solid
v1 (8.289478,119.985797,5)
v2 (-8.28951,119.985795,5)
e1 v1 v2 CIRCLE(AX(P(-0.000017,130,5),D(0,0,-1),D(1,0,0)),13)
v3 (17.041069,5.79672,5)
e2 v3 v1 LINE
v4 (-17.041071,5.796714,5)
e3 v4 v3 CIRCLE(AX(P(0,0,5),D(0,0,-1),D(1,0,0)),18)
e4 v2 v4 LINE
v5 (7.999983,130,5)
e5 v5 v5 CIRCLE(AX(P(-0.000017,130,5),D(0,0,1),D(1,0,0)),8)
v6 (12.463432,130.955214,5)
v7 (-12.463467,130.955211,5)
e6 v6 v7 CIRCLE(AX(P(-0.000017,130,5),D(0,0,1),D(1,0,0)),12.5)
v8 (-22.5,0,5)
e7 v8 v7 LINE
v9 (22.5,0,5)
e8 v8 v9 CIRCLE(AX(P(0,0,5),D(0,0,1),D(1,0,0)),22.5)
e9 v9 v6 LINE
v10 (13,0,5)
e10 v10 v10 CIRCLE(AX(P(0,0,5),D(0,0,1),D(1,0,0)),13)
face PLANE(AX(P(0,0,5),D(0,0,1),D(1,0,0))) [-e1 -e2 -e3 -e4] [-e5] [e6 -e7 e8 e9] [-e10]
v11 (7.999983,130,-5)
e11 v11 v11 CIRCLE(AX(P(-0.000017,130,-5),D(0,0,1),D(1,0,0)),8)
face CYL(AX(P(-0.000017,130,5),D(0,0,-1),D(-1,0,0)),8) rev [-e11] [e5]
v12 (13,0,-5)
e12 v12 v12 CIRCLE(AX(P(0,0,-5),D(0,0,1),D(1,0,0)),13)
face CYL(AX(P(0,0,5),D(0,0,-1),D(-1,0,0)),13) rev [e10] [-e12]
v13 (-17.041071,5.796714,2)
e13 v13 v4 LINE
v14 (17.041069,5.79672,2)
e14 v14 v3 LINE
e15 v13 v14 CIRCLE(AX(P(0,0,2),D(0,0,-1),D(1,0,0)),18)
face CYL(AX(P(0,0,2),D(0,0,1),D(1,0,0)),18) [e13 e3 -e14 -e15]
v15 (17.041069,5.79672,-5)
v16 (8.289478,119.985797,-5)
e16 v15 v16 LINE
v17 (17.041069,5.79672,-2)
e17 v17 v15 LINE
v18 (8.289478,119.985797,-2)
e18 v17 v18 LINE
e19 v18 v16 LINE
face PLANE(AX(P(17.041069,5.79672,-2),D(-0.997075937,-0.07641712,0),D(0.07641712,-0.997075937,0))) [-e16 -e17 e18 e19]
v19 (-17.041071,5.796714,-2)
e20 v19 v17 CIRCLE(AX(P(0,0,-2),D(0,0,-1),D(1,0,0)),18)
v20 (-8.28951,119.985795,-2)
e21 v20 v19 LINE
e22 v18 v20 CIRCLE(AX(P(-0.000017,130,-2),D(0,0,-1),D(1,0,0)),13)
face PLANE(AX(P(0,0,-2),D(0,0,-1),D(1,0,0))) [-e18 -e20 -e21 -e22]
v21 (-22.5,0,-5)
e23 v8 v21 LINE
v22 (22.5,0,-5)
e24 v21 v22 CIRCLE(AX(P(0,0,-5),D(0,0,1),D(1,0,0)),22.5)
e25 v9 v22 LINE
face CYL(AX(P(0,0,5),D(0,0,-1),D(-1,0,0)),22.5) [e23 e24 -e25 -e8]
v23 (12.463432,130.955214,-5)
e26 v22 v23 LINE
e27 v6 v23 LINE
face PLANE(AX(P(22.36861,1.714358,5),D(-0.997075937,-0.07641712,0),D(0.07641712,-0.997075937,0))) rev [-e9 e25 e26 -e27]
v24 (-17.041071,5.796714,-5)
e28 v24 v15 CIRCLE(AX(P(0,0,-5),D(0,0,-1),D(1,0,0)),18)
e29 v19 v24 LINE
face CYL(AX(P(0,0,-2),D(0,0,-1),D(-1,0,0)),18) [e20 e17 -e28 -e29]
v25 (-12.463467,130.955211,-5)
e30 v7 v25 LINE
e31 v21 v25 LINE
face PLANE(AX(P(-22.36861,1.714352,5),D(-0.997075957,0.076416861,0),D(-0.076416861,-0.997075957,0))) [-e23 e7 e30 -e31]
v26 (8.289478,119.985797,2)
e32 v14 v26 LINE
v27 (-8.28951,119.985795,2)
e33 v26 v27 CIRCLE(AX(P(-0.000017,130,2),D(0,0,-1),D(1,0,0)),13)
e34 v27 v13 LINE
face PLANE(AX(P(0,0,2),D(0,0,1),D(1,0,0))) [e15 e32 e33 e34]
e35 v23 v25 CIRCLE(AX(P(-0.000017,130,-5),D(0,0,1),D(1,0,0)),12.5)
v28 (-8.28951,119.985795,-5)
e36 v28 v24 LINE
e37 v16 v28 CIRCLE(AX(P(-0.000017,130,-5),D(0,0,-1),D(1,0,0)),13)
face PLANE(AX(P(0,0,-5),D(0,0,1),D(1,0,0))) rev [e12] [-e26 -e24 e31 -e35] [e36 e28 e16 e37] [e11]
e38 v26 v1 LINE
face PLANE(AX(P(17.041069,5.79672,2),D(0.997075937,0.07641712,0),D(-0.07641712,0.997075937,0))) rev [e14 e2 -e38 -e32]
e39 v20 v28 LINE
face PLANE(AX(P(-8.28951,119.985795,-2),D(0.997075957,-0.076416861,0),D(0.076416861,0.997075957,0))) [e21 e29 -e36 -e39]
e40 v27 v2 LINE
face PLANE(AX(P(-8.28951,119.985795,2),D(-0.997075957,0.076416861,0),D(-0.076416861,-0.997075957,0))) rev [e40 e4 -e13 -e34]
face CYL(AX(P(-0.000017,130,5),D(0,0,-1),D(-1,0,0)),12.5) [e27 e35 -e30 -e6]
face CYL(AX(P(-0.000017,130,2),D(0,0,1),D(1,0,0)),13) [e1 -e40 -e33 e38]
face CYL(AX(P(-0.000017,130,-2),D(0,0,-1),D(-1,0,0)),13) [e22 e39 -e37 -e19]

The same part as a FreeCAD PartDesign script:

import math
import FreeCAD as App
import Part
import Sketcher
from FreeCAD import Vector
Q = App.Units.Quantity

doc = App.newDocument("Part")
body = doc.addObject("PartDesign::Body", "Body")

sketch1 = body.newObject("Sketcher::SketchObject", "Sketch")
sketch1.AttachmentSupport = (doc.getObject("XY_Plane"), [""])
sketch1.MapMode = "FlatFace"
sketch1.addGeometry(Part.LineSegment(Vector(-12.5, 131, 0), Vector(-22.2, 3.4, 0)), False)
sketch1.addGeometry(Part.LineSegment(Vector(-22.2, 3.4, 0), Vector(-22.5, 0, 0)), False)
sketch1.addGeometry(Part.ArcOfCircle(Part.Circle(Vector(0, 0, 0), Vector(0, 0, 1), 22.5), math.radians(180), math.radians(360)), False)
sketch1.addGeometry(Part.LineSegment(Vector(22.5, 0, 0), Vector(22.2, 3.4, 0)), False)
sketch1.addGeometry(Part.LineSegment(Vector(22.2, 3.4, 0), Vector(12.5, 131, 0)), False)
sketch1.addGeometry(Part.ArcOfCircle(Part.Circle(Vector(0, 130, 0), Vector(0, 0, 1), 12.5), math.radians(4), math.radians(176)), False)
sketch1.addGeometry(Part.Circle(Vector(0, 0, 0), Vector(0, 0, 1), 13), False)
sketch1.addGeometry(Part.Circle(Vector(0, 130, 0), Vector(0, 0, 1), 8), False)
sketch1.addConstraint(Sketcher.Constraint("Coincident", 0, 2, 1, 1))
sketch1.addConstraint(Sketcher.Constraint("Coincident", 1, 2, 2, 1))
sketch1.addConstraint(Sketcher.Constraint("Coincident", 2, 2, 3, 1))
sketch1.addConstraint(Sketcher.Constraint("Coincident", 3, 2, 4, 1))
sketch1.addConstraint(Sketcher.Constraint("Tangent", 4, 2, 5, 1))
sketch1.addConstraint(Sketcher.Constraint("Tangent", 5, 2, 0, 1))
sketch1.addConstraint(Sketcher.Constraint("Coincident", 2, 3, -1, 1))
sketch1.addConstraint(Sketcher.Constraint("Coincident", 6, 3, -1, 1))
sketch1.addConstraint(Sketcher.Constraint("Coincident", 7, 3, 5, 3))
sketch1.addConstraint(Sketcher.Constraint("PointOnObject", 1, 2, -1))
sketch1.addConstraint(Sketcher.Constraint("PointOnObject", 2, 2, -1))
sketch1.addConstraint(Sketcher.Constraint("Parallel", 0, 1))
sketch1.addConstraint(Sketcher.Constraint("Parallel", 3, 4))
sketch1.addConstraint(Sketcher.Constraint("Diameter", 6, Q("26 mm")))
sketch1.addConstraint(Sketcher.Constraint("Diameter", 7, Q("16 mm")))
sketch1.addConstraint(Sketcher.Constraint("Radius", 2, Q("22.5 mm")))
sketch1.addConstraint(Sketcher.Constraint("Radius", 5, Q("12.5 mm")))
sketch1.addConstraint(Sketcher.Constraint("DistanceY", -1, 1, 5, 3, Q("130 mm")))
sketch1.addConstraint(Sketcher.Constraint("DistanceY", 3, 2, 4, 2, Q("127.526499 mm")))
sketch1.addConstraint(Sketcher.Constraint("Distance", 1, Q("3.438759 mm")))
sketch1.addConstraint(Sketcher.Constraint("Distance", 3, Q("3.43877 mm")))
pad1 = body.newObject("PartDesign::Pad", "Pad")
pad1.Profile = sketch1
pad1.Length = 10
pad1.Midplane = True

sketch2 = body.newObject("Sketcher::SketchObject", "Sketch001")
sketch2.AttachmentSupport = (doc.getObject("XY_Plane"), [""])
sketch2.MapMode = "FlatFace"
sketch2.AttachmentOffset = App.Placement(Vector(0, 0, 5), App.Rotation())
sketch2.addGeometry(Part.LineSegment(Vector(17, 6, 0), Vector(8, 120, 0)), False)
sketch2.addGeometry(Part.ArcOfCircle(Part.Circle(Vector(0, 130, 0), Vector(0, 0, 1), 13), math.radians(-130), math.radians(-50)), False)
sketch2.addGeometry(Part.LineSegment(Vector(-8, 120, 0), Vector(-17, 6, 0)), False)
sketch2.addGeometry(Part.ArcOfCircle(Part.Circle(Vector(0, 0, 0), Vector(0, 0, 1), 18), math.radians(19), math.radians(161)), False)
sketch2.addConstraint(Sketcher.Constraint("Coincident", 0, 2, 1, 2))
sketch2.addConstraint(Sketcher.Constraint("Coincident", 1, 1, 2, 1))
sketch2.addConstraint(Sketcher.Constraint("Coincident", 2, 2, 3, 2))
sketch2.addConstraint(Sketcher.Constraint("Coincident", 3, 1, 0, 1))
sketch2.addConstraint(Sketcher.Constraint("Coincident", 3, 3, -1, 1))
sketch2.addConstraint(Sketcher.Constraint("Equal", 0, 2))
sketch2.addConstraint(Sketcher.Constraint("Radius", 1, Q("13 mm")))
sketch2.addConstraint(Sketcher.Constraint("Radius", 3, Q("18 mm")))
sketch2.addConstraint(Sketcher.Constraint("DistanceY", -1, 1, 1, 3, Q("130 mm")))
sketch2.addConstraint(Sketcher.Constraint("DistanceX", -1, 1, 0, 2, Q("8.289478 mm")))
sketch2.addConstraint(Sketcher.Constraint("DistanceX", 1, 1, -1, 1, Q("8.28951 mm")))
sketch2.addConstraint(Sketcher.Constraint("DistanceX", 2, 2, -1, 1, Q("17.041071 mm")))
sketch2.addConstraint(Sketcher.Constraint("DistanceX", -1, 1, 3, 1, Q("17.041069 mm")))
pocket1 = body.newObject("PartDesign::Pocket", "Pocket")
pocket1.Profile = sketch2
pocket1.Length = 3
doc.recompute()

mirrored = body.newObject("PartDesign::Mirrored", "Mirrored")
mirrored.Originals = [pocket1]
mirrored.MirrorPlane = (doc.getObject("XY_Plane"), [""])
body.Tip = mirrored

doc.recompute()
